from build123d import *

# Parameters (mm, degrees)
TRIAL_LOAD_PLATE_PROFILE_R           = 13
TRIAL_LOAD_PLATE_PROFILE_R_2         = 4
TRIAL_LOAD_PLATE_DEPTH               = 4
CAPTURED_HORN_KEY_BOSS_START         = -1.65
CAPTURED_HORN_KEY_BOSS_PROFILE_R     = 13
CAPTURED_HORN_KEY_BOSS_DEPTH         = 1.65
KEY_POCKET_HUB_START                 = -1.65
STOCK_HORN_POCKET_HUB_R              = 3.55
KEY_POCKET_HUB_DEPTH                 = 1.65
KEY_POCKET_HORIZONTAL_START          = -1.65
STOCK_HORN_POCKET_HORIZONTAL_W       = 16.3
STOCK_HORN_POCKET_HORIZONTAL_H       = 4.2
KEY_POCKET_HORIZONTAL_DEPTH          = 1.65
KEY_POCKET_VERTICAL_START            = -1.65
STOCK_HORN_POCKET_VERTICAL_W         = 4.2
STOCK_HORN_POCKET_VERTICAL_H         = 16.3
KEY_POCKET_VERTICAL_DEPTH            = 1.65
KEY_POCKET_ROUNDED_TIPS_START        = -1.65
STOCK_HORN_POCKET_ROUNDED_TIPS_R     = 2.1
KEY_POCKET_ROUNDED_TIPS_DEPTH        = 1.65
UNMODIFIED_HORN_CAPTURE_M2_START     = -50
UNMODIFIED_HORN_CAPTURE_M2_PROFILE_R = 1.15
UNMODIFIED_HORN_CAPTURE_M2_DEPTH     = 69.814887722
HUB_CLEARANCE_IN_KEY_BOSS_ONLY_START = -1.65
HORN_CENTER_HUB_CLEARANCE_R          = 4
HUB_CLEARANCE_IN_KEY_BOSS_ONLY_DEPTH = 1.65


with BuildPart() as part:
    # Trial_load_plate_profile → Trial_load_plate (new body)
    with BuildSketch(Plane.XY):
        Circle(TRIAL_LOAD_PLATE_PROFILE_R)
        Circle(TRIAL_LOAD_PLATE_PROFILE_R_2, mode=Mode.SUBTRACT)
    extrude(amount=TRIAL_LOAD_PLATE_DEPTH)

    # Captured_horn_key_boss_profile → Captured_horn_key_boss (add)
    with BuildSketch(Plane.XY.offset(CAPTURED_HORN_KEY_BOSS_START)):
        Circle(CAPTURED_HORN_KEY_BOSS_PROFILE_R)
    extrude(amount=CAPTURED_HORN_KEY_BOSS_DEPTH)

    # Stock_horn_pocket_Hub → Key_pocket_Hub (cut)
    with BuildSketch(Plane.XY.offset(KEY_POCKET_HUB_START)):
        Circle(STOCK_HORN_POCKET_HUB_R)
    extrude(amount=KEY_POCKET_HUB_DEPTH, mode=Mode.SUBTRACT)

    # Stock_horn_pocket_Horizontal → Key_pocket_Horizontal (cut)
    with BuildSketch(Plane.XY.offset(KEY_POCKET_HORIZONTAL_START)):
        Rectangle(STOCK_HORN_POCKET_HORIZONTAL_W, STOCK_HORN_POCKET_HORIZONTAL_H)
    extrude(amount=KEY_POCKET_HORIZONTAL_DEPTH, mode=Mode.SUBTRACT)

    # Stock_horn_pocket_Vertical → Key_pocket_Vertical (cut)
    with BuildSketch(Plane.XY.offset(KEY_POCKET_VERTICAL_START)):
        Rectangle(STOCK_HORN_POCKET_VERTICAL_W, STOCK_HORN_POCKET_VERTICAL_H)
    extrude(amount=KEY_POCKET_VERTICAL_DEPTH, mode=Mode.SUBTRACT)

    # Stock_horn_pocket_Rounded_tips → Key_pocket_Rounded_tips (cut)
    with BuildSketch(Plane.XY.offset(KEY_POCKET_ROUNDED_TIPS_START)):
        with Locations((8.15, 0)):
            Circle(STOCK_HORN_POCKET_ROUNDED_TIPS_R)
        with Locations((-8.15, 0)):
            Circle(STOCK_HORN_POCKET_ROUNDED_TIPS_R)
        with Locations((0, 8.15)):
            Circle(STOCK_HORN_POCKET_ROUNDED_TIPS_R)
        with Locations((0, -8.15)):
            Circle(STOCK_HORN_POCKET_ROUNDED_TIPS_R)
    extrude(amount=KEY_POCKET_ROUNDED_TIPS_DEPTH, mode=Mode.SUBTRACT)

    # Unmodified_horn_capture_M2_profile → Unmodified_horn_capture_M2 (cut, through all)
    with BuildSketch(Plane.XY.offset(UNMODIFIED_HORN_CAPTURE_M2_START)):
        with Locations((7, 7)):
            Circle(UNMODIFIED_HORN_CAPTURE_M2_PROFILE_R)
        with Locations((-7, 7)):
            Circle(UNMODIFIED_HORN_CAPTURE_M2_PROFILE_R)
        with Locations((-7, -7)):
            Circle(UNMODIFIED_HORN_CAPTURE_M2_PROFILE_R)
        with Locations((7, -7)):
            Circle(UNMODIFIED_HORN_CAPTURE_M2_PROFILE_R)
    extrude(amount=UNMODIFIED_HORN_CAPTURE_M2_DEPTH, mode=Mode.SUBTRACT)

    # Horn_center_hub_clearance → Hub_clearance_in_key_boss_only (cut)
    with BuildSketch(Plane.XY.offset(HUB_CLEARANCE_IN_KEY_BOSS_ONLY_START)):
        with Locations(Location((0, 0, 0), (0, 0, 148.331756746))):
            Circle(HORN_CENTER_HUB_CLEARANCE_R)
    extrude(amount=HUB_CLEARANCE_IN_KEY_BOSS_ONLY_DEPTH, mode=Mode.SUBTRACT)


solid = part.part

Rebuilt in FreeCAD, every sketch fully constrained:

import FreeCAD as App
import Part
import Sketcher

doc = App.newDocument("Part")
params = doc.addObject("Spreadsheet::Sheet", "Params")
for row, (alias, value) in enumerate([
    ("sketch1_diameter", "26 mm"),
    ("sketch1_diameter2", "8 mm"),
    ("pad1_length", "4 mm"),
    ("sketch2_diameter", "26 mm"),
    ("pad2_length", "1.65 mm"),
    ("sketch3_diameter", "7.1 mm"),
    ("pocket1_length", "1.65 mm"),
    ("sketch4_width", "16.3 mm"),
    ("sketch4_height", "4.2 mm"),
    ("pocket2_length", "1.65 mm"),
    ("sketch5_width", "4.2 mm"),
    ("sketch5_height", "16.3 mm"),
    ("pocket3_length", "1.65 mm"),
    ("sketch6_diameter", "4.2 mm"),
    ("pocket4_length", "1.65 mm"),
    ("sketch7_diameter", "2.3 mm"),
    ("sketch8_diameter", "8 mm"),
    ("pocket6_length", "1.65 mm"),
], start=1):
    params.set(f"A{row}", alias)
    params.set(f"B{row}", "=" + value)
    params.setAlias(f"B{row}", alias)

body = doc.addObject("PartDesign::Body", "Body")

sketch1 = body.newObject("Sketcher::SketchObject", "Sketch")
sketch1.AttachmentSupport = (doc.getObject("XY_Plane"), [""])
sketch1.MapMode = "FlatFace"
sketch1.addGeometry(Part.Circle(App.Vector(0, 0, 0), App.Vector(0, 0, 1), 13), False)
sketch1.addGeometry(Part.Circle(App.Vector(0, 0, 0), App.Vector(0, 0, 1), 4), False)
sketch1.addConstraint(Sketcher.Constraint("Coincident", 0, 3, -1, 1))
sketch1.addConstraint(Sketcher.Constraint("Coincident", 1, 3, -1, 1))
sketch1.addConstraint(Sketcher.Constraint("Diameter", 0, 26.0))
sketch1.addConstraint(Sketcher.Constraint("Diameter", 1, 8.0))
sketch1.setExpression("Constraints[2]", "Params.sketch1_diameter")
sketch1.setExpression("Constraints[3]", "Params.sketch1_diameter2")
pad1 = body.newObject("PartDesign::Pad", "Pad")
pad1.Profile = sketch1
pad1.setExpression("Length", "Params.pad1_length")

sketch2 = body.newObject("Sketcher::SketchObject", "Sketch001")
sketch2.AttachmentSupport = (doc.getObject("XY_Plane"), [""])
sketch2.MapMode = "FlatFace"
sketch2.AttachmentOffset = App.Placement(App.Vector(0, 0, -1.65), App.Rotation())
sketch2.addGeometry(Part.Circle(App.Vector(0, 0, 0), App.Vector(0, 0, 1), 13), False)
sketch2.addConstraint(Sketcher.Constraint("Coincident", 0, 3, -1, 1))
sketch2.addConstraint(Sketcher.Constraint("Diameter", 0, 26.0))
sketch2.setExpression("Constraints[1]", "Params.sketch2_diameter")
pad2 = body.newObject("PartDesign::Pad", "Pad001")
pad2.Profile = sketch2
pad2.setExpression("Length", "Params.pad2_length")

sketch3 = body.newObject("Sketcher::SketchObject", "Sketch002")
sketch3.AttachmentSupport = (doc.getObject("XY_Plane"), [""])
sketch3.MapMode = "FlatFace"
sketch3.AttachmentOffset = App.Placement(App.Vector(0, 0, -1.65), App.Rotation())
sketch3.addGeometry(Part.Circle(App.Vector(0, 0, 0), App.Vector(0, 0, 1), 3.55), False)
sketch3.addConstraint(Sketcher.Constraint("Coincident", 0, 3, -1, 1))
sketch3.addConstraint(Sketcher.Constraint("Diameter", 0, 7.1))
sketch3.setExpression("Constraints[1]", "Params.sketch3_diameter")
pocket1 = body.newObject("PartDesign::Pocket", "Pocket")
pocket1.Profile = sketch3
pocket1.setExpression("Length", "Params.pocket1_length")
pocket1.Reversed = True

sketch4 = body.newObject("Sketcher::SketchObject", "Sketch003")
sketch4.AttachmentSupport = (doc.getObject("XY_Plane"), [""])
sketch4.MapMode = "FlatFace"
sketch4.AttachmentOffset = App.Placement(App.Vector(0, 0, -1.65), App.Rotation())
sketch4.addGeometry(Part.LineSegment(App.Vector(-8.15, 2.1, 0), App.Vector(-8.15, -2.1, 0)), False)
sketch4.addGeometry(Part.LineSegment(App.Vector(-8.15, -2.1, 0), App.Vector(8.15, -2.1, 0)), False)
sketch4.addGeometry(Part.LineSegment(App.Vector(8.15, -2.1, 0), App.Vector(8.15, 2.1, 0)), False)
sketch4.addGeometry(Part.LineSegment(App.Vector(8.15, 2.1, 0), App.Vector(-8.15, 2.1, 0)), False)
sketch4.addConstraint(Sketcher.Constraint("Coincident", 0, 2, 1, 1))
sketch4.addConstraint(Sketcher.Constraint("Coincident", 1, 2, 2, 1))
sketch4.addConstraint(Sketcher.Constraint("Coincident", 2, 2, 3, 1))
sketch4.addConstraint(Sketcher.Constraint("Coincident", 3, 2, 0, 1))
sketch4.addConstraint(Sketcher.Constraint("Vertical", 0))
sketch4.addConstraint(Sketcher.Constraint("Horizontal", 1))
sketch4.addConstraint(Sketcher.Constraint("Vertical", 2))
sketch4.addConstraint(Sketcher.Constraint("Horizontal", 3))
sketch4.addConstraint(Sketcher.Constraint("Symmetric", 0, 2, 2, 2, -1, 1))
sketch4.addConstraint(Sketcher.Constraint("DistanceX", 1, 1, 1, 2, 16.3))
sketch4.addConstraint(Sketcher.Constraint("DistanceY", 0, 2, 0, 1, 4.2))
sketch4.setExpression("Constraints[9]", "Params.sketch4_width")
sketch4.setExpression("Constraints[10]", "Params.sketch4_height")
pocket2 = body.newObject("PartDesign::Pocket", "Pocket001")
pocket2.Profile = sketch4
pocket2.setExpression("Length", "Params.pocket2_length")
pocket2.Reversed = True

sketch5 = body.newObject("Sketcher::SketchObject", "Sketch004")
sketch5.AttachmentSupport = (doc.getObject("XY_Plane"), [""])
sketch5.MapMode = "FlatFace"
sketch5.AttachmentOffset = App.Placement(App.Vector(0, 0, -1.65), App.Rotation())
sketch5.addGeometry(Part.LineSegment(App.Vector(-2.1, 8.15, 0), App.Vector(-2.1, -8.15, 0)), False)
sketch5.addGeometry(Part.LineSegment(App.Vector(-2.1, -8.15, 0), App.Vector(2.1, -8.15, 0)), False)
sketch5.addGeometry(Part.LineSegment(App.Vector(2.1, -8.15, 0), App.Vector(2.1, 8.15, 0)), False)
sketch5.addGeometry(Part.LineSegment(App.Vector(2.1, 8.15, 0), App.Vector(-2.1, 8.15, 0)), False)
sketch5.addConstraint(Sketcher.Constraint("Coincident", 0, 2, 1, 1))
sketch5.addConstraint(Sketcher.Constraint("Coincident", 1, 2, 2, 1))
sketch5.addConstraint(Sketcher.Constraint("Coincident", 2, 2, 3, 1))
sketch5.addConstraint(Sketcher.Constraint("Coincident", 3, 2, 0, 1))
sketch5.addConstraint(Sketcher.Constraint("Vertical", 0))
sketch5.addConstraint(Sketcher.Constraint("Horizontal", 1))
sketch5.addConstraint(Sketcher.Constraint("Vertical", 2))
sketch5.addConstraint(Sketcher.Constraint("Horizontal", 3))
sketch5.addConstraint(Sketcher.Constraint("Symmetric", 0, 2, 2, 2, -1, 1))
sketch5.addConstraint(Sketcher.Constraint("DistanceX", 1, 1, 1, 2, 4.2))
sketch5.addConstraint(Sketcher.Constraint("DistanceY", 0, 2, 0, 1, 16.3))
sketch5.setExpression("Constraints[9]", "Params.sketch5_width")
sketch5.setExpression("Constraints[10]", "Params.sketch5_height")
pocket3 = body.newObject("PartDesign::Pocket", "Pocket002")
pocket3.Profile = sketch5
pocket3.setExpression("Length", "Params.pocket3_length")
pocket3.Reversed = True

sketch6 = body.newObject("Sketcher::SketchObject", "Sketch005")
sketch6.AttachmentSupport = (doc.getObject("XY_Plane"), [""])
sketch6.MapMode = "FlatFace"
sketch6.AttachmentOffset = App.Placement(App.Vector(0, 0, -1.65), App.Rotation())
sketch6.addGeometry(Part.Circle(App.Vector(8.15, 0, 0), App.Vector(0, 0, 1), 2.1), False)
sketch6.addGeometry(Part.Circle(App.Vector(-8.15, 0, 0), App.Vector(0, 0, 1), 2.1), False)
sketch6.addGeometry(Part.Circle(App.Vector(0, 8.15, 0), App.Vector(0, 0, 1), 2.1), False)
sketch6.addGeometry(Part.Circle(App.Vector(0, -8.15, 0), App.Vector(0, 0, 1), 2.1), False)
sketch6.addConstraint(Sketcher.Constraint("Equal", 0, 1))
sketch6.addConstraint(Sketcher.Constraint("Equal", 1, 2))
sketch6.addConstraint(Sketcher.Constraint("Equal", 2, 3))
sketch6.addConstraint(Sketcher.Constraint("Symmetric", 0, 3, 1, 3, -1, 1))
sketch6.addConstraint(Sketcher.Constraint("Symmetric", 2, 3, 3, 3, -1, 1))
sketch6.addConstraint(Sketcher.Constraint("PointOnObject", 0, 3, -1))
sketch6.addConstraint(Sketcher.Constraint("PointOnObject", 2, 3, -2))
sketch6.addConstraint(Sketcher.Constraint("Diameter", 0, 4.2))
sketch6.addConstraint(Sketcher.Constraint("DistanceX", 1, 3, 0, 3, 16.3))
sketch6.addConstraint(Sketcher.Constraint("DistanceY", 3, 3, 2, 3, 16.3))
sketch6.setExpression("Constraints[7]", "Params.sketch6_diameter")
pocket4 = body.newObject("PartDesign::Pocket", "Pocket003")
pocket4.Profile = sketch6
pocket4.setExpression("Length", "Params.pocket4_length")
pocket4.Reversed = True

sketch7 = body.newObject("Sketcher::SketchObject", "Sketch006")
sketch7.AttachmentSupport = (doc.getObject("XY_Plane"), [""])
sketch7.MapMode = "FlatFace"
sketch7.AttachmentOffset = App.Placement(App.Vector(0, 0, -50), App.Rotation())
sketch7.addGeometry(Part.Circle(App.Vector(7, 7, 0), App.Vector(0, 0, 1), 1.15), False)
sketch7.addGeometry(Part.Circle(App.Vector(-7, 7, 0), App.Vector(0, 0, 1), 1.15), False)
sketch7.addGeometry(Part.Circle(App.Vector(-7, -7, 0), App.Vector(0, 0, 1), 1.15), False)
sketch7.addGeometry(Part.Circle(App.Vector(7, -7, 0), App.Vector(0, 0, 1), 1.15), False)
sketch7.addConstraint(Sketcher.Constraint("Equal", 0, 1))
sketch7.addConstraint(Sketcher.Constraint("Equal", 1, 2))
sketch7.addConstraint(Sketcher.Constraint("Equal", 2, 3))
sketch7.addConstraint(Sketcher.Constraint("Symmetric", 0, 3, 2, 3, -1, 1))
sketch7.addConstraint(Sketcher.Constraint("Symmetric", 1, 3, 3, 3, -1, 1))
sketch7.addConstraint(Sketcher.Constraint("Symmetric", 0, 3, 1, 3, -2))
sketch7.addConstraint(Sketcher.Constraint("Diameter", 0, 2.3))
sketch7.addConstraint(Sketcher.Constraint("DistanceX", -1, 1, 0, 3, 7.0))
sketch7.addConstraint(Sketcher.Constraint("DistanceY", -1, 1, 0, 3, 7.0))
sketch7.setExpression("Constraints[6]", "Params.sketch7_diameter")
pocket5 = body.newObject("PartDesign::Pocket", "Pocket004")
pocket5.Profile = sketch7
pocket5.Type = "ThroughAll"
pocket5.Reversed = True

sketch8 = body.newObject("Sketcher::SketchObject", "Sketch007")
sketch8.AttachmentSupport = (doc.getObject("XY_Plane"), [""])
sketch8.MapMode = "FlatFace"
sketch8.AttachmentOffset = App.Placement(App.Vector(0, 0, -1.65), App.Rotation())
sketch8.addGeometry(Part.Circle(App.Vector(0, 0, 0), App.Vector(0, 0, 1), 4), False)
sketch8.addConstraint(Sketcher.Constraint("Coincident", 0, 3, -1, 1))
sketch8.addConstraint(Sketcher.Constraint("Diameter", 0, 8.0))
sketch8.setExpression("Constraints[1]", "Params.sketch8_diameter")
pocket6 = body.newObject("PartDesign::Pocket", "Pocket005")
pocket6.Profile = sketch8
pocket6.setExpression("Length", "Params.pocket6_length")
pocket6.Reversed = True

doc.recompute()
